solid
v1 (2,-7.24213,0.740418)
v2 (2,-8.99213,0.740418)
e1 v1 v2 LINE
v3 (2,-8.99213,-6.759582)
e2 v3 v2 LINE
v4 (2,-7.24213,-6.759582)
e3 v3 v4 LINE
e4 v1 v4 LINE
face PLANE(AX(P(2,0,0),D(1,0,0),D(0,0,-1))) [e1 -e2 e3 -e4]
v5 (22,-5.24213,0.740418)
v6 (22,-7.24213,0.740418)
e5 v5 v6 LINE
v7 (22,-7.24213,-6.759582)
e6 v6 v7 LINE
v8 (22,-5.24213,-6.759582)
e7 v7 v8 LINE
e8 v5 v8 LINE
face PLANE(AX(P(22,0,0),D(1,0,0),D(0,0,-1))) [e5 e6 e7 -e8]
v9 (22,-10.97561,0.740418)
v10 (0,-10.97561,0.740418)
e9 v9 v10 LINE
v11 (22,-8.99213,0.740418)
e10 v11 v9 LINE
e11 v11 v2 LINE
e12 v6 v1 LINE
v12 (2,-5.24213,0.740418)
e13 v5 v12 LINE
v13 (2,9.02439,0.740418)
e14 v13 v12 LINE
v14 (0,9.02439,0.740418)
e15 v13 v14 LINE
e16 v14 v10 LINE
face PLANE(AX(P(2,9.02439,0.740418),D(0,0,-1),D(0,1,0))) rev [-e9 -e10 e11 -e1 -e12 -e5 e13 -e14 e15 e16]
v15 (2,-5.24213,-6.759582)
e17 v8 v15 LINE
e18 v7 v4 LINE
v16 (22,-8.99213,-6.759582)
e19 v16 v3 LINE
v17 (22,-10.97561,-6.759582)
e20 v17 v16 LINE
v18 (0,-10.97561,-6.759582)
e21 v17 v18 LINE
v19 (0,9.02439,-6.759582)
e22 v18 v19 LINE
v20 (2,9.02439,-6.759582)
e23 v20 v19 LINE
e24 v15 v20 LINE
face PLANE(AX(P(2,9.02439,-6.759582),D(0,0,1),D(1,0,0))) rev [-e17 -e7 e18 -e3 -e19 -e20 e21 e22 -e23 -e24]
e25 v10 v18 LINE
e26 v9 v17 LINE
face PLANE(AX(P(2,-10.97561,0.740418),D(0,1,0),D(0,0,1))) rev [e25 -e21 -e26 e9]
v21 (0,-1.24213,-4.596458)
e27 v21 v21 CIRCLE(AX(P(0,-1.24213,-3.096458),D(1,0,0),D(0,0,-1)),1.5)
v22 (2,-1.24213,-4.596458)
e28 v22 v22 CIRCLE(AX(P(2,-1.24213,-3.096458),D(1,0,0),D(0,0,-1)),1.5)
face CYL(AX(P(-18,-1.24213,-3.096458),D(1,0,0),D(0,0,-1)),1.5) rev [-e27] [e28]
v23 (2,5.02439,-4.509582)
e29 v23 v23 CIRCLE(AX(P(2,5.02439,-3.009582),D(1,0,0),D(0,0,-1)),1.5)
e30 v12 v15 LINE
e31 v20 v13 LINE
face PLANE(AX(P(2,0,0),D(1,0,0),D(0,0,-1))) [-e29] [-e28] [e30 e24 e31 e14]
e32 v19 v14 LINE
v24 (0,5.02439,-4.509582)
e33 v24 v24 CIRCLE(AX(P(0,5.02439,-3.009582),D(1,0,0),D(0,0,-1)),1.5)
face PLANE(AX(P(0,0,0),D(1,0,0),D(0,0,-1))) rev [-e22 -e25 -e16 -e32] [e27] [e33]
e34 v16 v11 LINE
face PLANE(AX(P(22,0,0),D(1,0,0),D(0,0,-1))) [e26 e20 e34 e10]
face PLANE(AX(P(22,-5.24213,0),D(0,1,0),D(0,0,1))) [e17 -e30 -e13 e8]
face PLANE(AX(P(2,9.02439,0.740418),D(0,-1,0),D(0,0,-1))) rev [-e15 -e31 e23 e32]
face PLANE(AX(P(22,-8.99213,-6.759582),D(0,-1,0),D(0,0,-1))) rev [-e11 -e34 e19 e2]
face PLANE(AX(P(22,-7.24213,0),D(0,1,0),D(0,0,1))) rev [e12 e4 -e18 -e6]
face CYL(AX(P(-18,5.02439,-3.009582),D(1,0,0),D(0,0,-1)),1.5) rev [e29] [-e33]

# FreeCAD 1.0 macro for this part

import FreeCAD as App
import Part
import Sketcher
from FreeCAD import Vector

doc = App.newDocument("Part")
body = doc.addObject("PartDesign::Body", "Body")

# Sketch on YZ plane
sketch1 = doc.addObject("Sketcher::SketchObject", "Sketch")
body.addObject(sketch1)
sketch1.AttachmentSupport = (doc.YZ_Plane, [""])
sketch1.MapMode = "FlatFace"
sketch1.addGeometry([
    Part.LineSegment(Vector(9, 1, 0), Vector(-11, 1, 0)),
    Part.LineSegment(Vector(-11, 1, 0), Vector(-11, -7, 0)),
    Part.LineSegment(Vector(-11, -7, 0), Vector(9, -7, 0)),
    Part.LineSegment(Vector(9, -7, 0), Vector(9, 1, 0)),
], False)
sketch1.addConstraint([
    Sketcher.Constraint("Coincident", 0, 2, 1, 1),
    Sketcher.Constraint("Coincident", 1, 2, 2, 1),
    Sketcher.Constraint("Coincident", 2, 2, 3, 1),
    Sketcher.Constraint("Coincident", 3, 2, 0, 1),
    Sketcher.Constraint("Horizontal", 0),
    Sketcher.Constraint("Vertical", 1),
    Sketcher.Constraint("Horizontal", 2),
    Sketcher.Constraint("Vertical", 3),
    Sketcher.Constraint("DistanceX", 0, 2, 0, 1, 20.0),
    Sketcher.Constraint("DistanceY", 1, 2, 1, 1, 7.5),
    Sketcher.Constraint("DistanceX", 0, 2, -1, 1, 10.97561),
    Sketcher.Constraint("DistanceY", -1, 1, 0, 2, 0.740418),
])
pad1 = doc.addObject("PartDesign::Pad", "Pad")
body.addObject(pad1)
pad1.Profile = sketch1
pad1.Length = 2

# Sketch on YZ plane
sketch2 = doc.addObject("Sketcher::SketchObject", "Sketch001")
body.addObject(sketch2)
sketch2.AttachmentSupport = (doc.YZ_Plane, [""])
sketch2.MapMode = "FlatFace"
sketch2.AttachmentOffset = App.Placement(Vector(0, 0, 2), App.Rotation())
sketch2.addGeometry([
    Part.LineSegment(Vector(-9, 0.7, 0), Vector(-11, 0.7, 0)),
    Part.LineSegment(Vector(-11, 0.7, 0), Vector(-11, -6.8, 0)),
    Part.LineSegment(Vector(-11, -6.8, 0), Vector(-9, -6.8, 0)),
    Part.LineSegment(Vector(-9, -6.8, 0), Vector(-9, 0.7, 0)),
], False)
sketch2.addConstraint([
    Sketcher.Constraint("Coincident", 0, 2, 1, 1),
    Sketcher.Constraint("Coincident", 1, 2, 2, 1),
    Sketcher.Constraint("Coincident", 2, 2, 3, 1),
    Sketcher.Constraint("Coincident", 3, 2, 0, 1),
    Sketcher.Constraint("Horizontal", 0),
    Sketcher.Constraint("Vertical", 1),
    Sketcher.Constraint("Horizontal", 2),
    Sketcher.Constraint("Vertical", 3),
    Sketcher.Constraint("DistanceY", 1, 2, 1, 1, 7.5),
    Sketcher.Constraint("DistanceX", 0, 2, 0, 1, 1.983479),
    Sketcher.Constraint("DistanceX", 0, 2, -1, 1, 10.97561),
    Sketcher.Constraint("DistanceY", -1, 1, 0, 2, 0.740418),
])
pad2 = doc.addObject("PartDesign::Pad", "Pad001")
body.addObject(pad2)
pad2.Profile = sketch2
pad2.Length = 20

# Sketch on YZ plane
sketch3 = doc.addObject("Sketcher::SketchObject", "Sketch002")
body.addObject(sketch3)
sketch3.AttachmentSupport = (doc.YZ_Plane, [""])
sketch3.MapMode = "FlatFace"
sketch3.AttachmentOffset = App.Placement(Vector(0, 0, 2), App.Rotation())
sketch3.addGeometry([
    Part.LineSegment(Vector(-5.2, 0.7, 0), Vector(-7.2, 0.7, 0)),
    Part.LineSegment(Vector(-7.2, 0.7, 0), Vector(-7.2, -6.8, 0)),
    Part.LineSegment(Vector(-7.2, -6.8, 0), Vector(-5.2, -6.8, 0)),
    Part.LineSegment(Vector(-5.2, -6.8, 0), Vector(-5.2, 0.7, 0)),
], False)
sketch3.addConstraint([
    Sketcher.Constraint("Coincident", 0, 2, 1, 1),
    Sketcher.Constraint("Coincident", 1, 2, 2, 1),
    Sketcher.Constraint("Coincident", 2, 2, 3, 1),
    Sketcher.Constraint("Coincident", 3, 2, 0, 1),
    Sketcher.Constraint("Horizontal", 0),
    Sketcher.Constraint("Vertical", 1),
    Sketcher.Constraint("Horizontal", 2),
    Sketcher.Constraint("Vertical", 3),
    Sketcher.Constraint("DistanceX", 0, 2, 0, 1, 2.0),
    Sketcher.Constraint("DistanceY", 1, 2, 1, 1, 7.5),
    Sketcher.Constraint("DistanceX", 0, 2, -1, 1, 7.24213),
    Sketcher.Constraint("DistanceY", -1, 1, 0, 2, 0.740418),
])
pad3 = doc.addObject("PartDesign::Pad", "Pad002")
body.addObject(pad3)
pad3.Profile = sketch3
pad3.Length = 20

# Sketch on YZ plane
sketch4 = doc.addObject("Sketcher::SketchObject", "Sketch003")
body.addObject(sketch4)
sketch4.AttachmentSupport = (doc.YZ_Plane, [""])
sketch4.MapMode = "FlatFace"
sketch4.AttachmentOffset = App.Placement(Vector(0, 0, 2), App.Rotation())
sketch4.addGeometry([
    Part.Circle(Vector(5, -3, 0), Vector(0, 0, 1), 1.5),
    Part.Circle(Vector(-1.2, -3.1, 0), Vector(0, 0, 1), 1.5),
], False)
sketch4.addConstraint([
    Sketcher.Constraint("Equal", 0, 1),
    Sketcher.Constraint("Diameter", 0, 3.0),
    Sketcher.Constraint("DistanceX", -1, 1, 0, 3, 5.02439),
    Sketcher.Constraint("DistanceY", 0, 3, -1, 1, 3.009582),
    Sketcher.Constraint("DistanceX", 1, 3, -1, 1, 1.24213),
    Sketcher.Constraint("DistanceY", 1, 3, -1, 1, 3.096458),
])
pocket1 = doc.addObject("PartDesign::Pocket", "Pocket")
body.addObject(pocket1)
pocket1.Profile = sketch4
pocket1.Length = 20

doc.recompute()
